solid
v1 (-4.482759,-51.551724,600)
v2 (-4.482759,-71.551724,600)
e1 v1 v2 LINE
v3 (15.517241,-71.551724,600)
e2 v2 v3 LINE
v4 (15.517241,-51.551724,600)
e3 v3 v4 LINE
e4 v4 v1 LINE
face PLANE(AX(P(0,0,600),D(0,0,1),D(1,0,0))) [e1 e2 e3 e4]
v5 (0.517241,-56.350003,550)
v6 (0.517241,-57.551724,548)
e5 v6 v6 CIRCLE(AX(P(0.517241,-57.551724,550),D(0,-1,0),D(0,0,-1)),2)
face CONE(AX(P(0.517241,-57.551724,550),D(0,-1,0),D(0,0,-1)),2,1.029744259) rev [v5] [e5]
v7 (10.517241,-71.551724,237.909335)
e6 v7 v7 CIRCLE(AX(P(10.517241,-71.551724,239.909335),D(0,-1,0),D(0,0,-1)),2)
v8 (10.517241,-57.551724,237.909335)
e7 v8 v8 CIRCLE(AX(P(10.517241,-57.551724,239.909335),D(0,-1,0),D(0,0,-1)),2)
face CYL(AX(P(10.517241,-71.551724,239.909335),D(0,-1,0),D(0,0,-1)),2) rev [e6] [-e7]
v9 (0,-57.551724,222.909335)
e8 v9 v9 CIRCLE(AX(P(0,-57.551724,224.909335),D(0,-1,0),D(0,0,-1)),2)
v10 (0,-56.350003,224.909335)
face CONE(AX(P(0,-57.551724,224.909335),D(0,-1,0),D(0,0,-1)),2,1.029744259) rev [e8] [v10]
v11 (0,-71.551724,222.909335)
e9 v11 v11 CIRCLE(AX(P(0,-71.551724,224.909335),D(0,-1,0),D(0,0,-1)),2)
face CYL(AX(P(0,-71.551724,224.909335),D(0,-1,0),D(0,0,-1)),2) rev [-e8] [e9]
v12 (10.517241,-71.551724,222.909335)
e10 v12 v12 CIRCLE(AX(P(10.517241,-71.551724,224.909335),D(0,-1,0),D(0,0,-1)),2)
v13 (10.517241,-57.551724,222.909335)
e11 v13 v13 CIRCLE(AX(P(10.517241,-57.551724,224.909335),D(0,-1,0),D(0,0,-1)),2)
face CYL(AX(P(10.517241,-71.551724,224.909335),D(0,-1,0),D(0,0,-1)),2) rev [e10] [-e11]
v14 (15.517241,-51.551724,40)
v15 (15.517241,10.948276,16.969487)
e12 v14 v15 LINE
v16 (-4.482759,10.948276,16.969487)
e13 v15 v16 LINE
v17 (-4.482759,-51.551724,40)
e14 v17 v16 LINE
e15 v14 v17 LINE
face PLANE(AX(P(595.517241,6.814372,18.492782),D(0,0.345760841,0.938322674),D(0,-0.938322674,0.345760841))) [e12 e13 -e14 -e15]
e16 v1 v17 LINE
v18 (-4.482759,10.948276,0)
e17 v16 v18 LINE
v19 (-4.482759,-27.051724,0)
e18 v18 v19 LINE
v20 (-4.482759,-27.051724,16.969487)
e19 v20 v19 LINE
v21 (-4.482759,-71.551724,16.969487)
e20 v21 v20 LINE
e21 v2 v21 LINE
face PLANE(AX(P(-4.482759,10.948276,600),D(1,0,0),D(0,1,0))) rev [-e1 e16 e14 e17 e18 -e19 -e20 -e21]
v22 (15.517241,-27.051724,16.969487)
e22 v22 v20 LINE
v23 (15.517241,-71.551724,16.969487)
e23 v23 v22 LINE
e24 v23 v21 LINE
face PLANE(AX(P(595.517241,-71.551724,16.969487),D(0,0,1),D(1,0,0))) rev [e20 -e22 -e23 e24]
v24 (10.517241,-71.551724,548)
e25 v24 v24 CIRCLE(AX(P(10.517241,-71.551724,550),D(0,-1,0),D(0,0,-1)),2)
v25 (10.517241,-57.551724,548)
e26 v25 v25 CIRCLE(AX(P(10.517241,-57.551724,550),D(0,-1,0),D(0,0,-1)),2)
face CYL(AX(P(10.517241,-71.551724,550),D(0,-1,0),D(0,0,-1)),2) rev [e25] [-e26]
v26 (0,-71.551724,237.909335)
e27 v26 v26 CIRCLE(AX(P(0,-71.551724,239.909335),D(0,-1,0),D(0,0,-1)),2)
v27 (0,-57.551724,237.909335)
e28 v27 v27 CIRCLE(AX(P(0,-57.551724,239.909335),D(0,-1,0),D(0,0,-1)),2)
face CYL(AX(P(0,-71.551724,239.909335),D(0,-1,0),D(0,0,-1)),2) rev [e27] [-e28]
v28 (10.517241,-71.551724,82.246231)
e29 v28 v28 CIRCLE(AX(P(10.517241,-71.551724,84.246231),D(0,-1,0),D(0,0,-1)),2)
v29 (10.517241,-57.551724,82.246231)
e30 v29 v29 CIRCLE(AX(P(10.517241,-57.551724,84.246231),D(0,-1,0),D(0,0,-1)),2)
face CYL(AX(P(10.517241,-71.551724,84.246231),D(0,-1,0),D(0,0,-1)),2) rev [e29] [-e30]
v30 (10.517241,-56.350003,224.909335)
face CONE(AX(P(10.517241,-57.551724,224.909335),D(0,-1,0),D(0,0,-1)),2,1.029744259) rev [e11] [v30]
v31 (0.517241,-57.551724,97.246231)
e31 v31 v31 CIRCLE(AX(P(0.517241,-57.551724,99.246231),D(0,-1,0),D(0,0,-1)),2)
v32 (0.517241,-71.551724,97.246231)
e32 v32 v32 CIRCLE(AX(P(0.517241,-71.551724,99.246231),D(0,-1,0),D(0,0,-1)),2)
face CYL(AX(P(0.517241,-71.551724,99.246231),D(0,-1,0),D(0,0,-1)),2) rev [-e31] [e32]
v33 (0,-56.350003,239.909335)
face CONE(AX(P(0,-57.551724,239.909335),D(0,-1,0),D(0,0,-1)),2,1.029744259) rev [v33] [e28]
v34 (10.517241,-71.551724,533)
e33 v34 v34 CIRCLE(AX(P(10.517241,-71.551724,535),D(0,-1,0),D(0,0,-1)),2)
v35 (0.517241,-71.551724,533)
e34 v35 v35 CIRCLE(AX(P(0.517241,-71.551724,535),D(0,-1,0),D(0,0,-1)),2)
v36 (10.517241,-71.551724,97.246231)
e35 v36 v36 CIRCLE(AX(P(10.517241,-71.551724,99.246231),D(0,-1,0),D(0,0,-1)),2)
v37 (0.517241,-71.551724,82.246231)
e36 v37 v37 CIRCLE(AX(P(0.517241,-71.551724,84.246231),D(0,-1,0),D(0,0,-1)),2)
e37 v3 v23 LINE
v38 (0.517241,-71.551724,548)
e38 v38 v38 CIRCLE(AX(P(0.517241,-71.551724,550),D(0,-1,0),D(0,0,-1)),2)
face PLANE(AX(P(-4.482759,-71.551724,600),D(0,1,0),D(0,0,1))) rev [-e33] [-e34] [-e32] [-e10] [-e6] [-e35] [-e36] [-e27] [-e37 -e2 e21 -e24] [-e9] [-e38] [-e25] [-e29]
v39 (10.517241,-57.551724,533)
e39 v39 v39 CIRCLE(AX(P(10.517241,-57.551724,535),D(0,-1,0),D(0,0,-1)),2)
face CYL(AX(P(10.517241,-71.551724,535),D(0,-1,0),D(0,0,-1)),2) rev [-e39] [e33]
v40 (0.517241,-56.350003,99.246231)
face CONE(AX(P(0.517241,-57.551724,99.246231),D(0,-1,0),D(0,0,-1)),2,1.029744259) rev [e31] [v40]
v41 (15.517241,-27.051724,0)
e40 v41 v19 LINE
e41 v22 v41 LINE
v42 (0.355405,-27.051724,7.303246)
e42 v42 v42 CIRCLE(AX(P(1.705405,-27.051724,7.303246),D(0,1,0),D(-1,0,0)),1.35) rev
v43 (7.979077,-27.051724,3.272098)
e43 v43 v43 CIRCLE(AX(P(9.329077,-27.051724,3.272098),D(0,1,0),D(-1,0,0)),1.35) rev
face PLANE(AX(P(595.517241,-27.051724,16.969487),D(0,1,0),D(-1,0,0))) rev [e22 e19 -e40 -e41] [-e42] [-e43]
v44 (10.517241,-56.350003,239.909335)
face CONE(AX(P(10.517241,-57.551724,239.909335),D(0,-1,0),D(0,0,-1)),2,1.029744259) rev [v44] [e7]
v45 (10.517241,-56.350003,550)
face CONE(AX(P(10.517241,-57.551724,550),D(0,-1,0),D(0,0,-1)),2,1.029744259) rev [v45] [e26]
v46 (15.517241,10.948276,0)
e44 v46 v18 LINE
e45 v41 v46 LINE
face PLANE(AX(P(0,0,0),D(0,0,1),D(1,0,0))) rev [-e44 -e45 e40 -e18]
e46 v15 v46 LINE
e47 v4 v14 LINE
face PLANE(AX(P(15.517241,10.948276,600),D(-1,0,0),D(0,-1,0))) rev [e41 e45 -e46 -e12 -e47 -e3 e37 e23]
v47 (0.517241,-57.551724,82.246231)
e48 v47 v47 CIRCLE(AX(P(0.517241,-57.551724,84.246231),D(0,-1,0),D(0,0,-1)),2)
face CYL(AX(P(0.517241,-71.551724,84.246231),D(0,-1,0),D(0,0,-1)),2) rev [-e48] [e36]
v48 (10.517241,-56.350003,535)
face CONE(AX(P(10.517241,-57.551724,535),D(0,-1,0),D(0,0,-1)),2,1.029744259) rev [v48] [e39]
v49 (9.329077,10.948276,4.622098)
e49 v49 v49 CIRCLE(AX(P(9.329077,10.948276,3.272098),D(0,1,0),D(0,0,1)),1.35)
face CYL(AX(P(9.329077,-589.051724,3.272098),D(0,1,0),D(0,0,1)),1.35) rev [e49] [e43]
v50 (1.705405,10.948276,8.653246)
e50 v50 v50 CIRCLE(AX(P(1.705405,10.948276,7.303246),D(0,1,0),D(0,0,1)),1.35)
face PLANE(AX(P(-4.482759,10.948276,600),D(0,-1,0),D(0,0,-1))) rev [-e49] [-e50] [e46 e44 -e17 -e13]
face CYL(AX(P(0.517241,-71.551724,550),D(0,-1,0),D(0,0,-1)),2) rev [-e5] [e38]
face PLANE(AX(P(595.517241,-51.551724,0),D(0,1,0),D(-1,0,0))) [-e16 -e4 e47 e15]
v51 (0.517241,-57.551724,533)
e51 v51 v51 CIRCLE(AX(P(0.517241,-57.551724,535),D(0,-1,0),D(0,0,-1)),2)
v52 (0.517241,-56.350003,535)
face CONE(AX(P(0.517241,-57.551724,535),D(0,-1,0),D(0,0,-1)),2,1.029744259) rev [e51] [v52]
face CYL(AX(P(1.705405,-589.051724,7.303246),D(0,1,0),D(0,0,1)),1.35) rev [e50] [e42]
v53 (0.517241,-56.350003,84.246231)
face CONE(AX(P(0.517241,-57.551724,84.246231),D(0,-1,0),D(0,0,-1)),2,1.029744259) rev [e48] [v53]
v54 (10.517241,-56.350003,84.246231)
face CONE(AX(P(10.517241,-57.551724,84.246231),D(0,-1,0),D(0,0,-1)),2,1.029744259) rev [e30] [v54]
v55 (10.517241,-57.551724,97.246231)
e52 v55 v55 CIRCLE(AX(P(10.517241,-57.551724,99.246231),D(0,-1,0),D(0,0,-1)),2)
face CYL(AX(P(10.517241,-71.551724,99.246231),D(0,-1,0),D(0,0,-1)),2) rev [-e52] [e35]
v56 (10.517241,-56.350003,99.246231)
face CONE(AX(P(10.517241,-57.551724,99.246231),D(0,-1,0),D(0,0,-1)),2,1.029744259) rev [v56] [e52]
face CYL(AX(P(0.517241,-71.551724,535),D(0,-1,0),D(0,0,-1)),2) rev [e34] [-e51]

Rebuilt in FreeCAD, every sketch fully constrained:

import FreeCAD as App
import Part
import Sketcher


def add_polygon(sketch, points):
    """Adds a closed chain of lines whose ends are joined by coincident constraints."""
    first, n = sketch.GeometryCount, len(points)
    for a, b in zip(points, points[1:] + points[:1]):
        sketch.addGeometry(Part.LineSegment(App.Vector(*a, 0), App.Vector(*b, 0)), False)
    for i in range(n):
        sketch.addConstraint(Sketcher.Constraint("Coincident", first + i, 2, first + (i + 1) % n, 1))

doc = App.newDocument("Part")
body = doc.addObject("PartDesign::Body", "Body")

# Sketch on XY plane
sketch1 = body.newObject("Sketcher::SketchObject", "Sketch")
sketch1.AttachmentSupport = (doc.getObject("XY_Plane"), [""])
sketch1.MapMode = "FlatFace"
add_polygon(sketch1, [(-4.482759, 10.948276), (-4.482759, -71.551724), (15.517241, -71.551724), (15.517241, 10.948276)])  # lines 0-3
sketch1.addConstraint(Sketcher.Constraint("Vertical", 0))
sketch1.addConstraint(Sketcher.Constraint("Horizontal", 1))
sketch1.addConstraint(Sketcher.Constraint("Vertical", 2))
sketch1.addConstraint(Sketcher.Constraint("Horizontal", 3))
sketch1.addConstraint(Sketcher.Constraint("DistanceX", 1, 1, 1, 2, 20.0))
sketch1.addConstraint(Sketcher.Constraint("DistanceY", 0, 2, 0, 1, 82.5))
sketch1.addConstraint(Sketcher.Constraint("DistanceX", 0, 2, -1, 1, 4.482759))
sketch1.addConstraint(Sketcher.Constraint("DistanceY", 0, 2, -1, 1, 71.551724))
pad1 = body.newObject("PartDesign::Pad", "Pad")
pad1.Profile = sketch1
pad1.Length = 600

# Sketch on XZ plane
sketch2 = body.newObject("Sketcher::SketchObject", "Sketch001")
sketch2.AttachmentSupport = (doc.getObject("XZ_Plane"), [""])
sketch2.MapMode = "FlatFace"
sketch2.AttachmentOffset = App.Placement(App.Vector(0, 0, -10.948276), App.Rotation())
sketch2.addGeometry(Part.Circle(App.Vector(9.329077, 3.272098, 0), App.Vector(0, 0, 1), 1.35), False)
sketch2.addGeometry(Part.Circle(App.Vector(1.705405, 7.303246, 0), App.Vector(0, 0, 1), 1.35), False)
sketch2.addConstraint(Sketcher.Constraint("Equal", 0, 1))
sketch2.addConstraint(Sketcher.Constraint("Diameter", 0, 2.7))
sketch2.addConstraint(Sketcher.Constraint("DistanceY", -1, 1, 0, 3, 3.272098))
sketch2.addConstraint(Sketcher.Constraint("DistanceY", 0, 3, 1, 3, 4.031148))
sketch2.addConstraint(Sketcher.Constraint("DistanceX", -1, 1, 0, 3, 9.329077))
sketch2.addConstraint(Sketcher.Constraint("DistanceX", -1, 1, 1, 3, 1.705405))
pocket1 = body.newObject("PartDesign::Pocket", "Pocket")
pocket1.Profile = sketch2
pocket1.Length = 600
pocket1.Reversed = True

# Sketch on YZ plane
sketch3 = body.newObject("Sketcher::SketchObject", "Sketch002")
sketch3.AttachmentSupport = (doc.getObject("YZ_Plane"), [""])
sketch3.MapMode = "FlatFace"
sketch3.AttachmentOffset = App.Placement(App.Vector(0, 0, -4.482759), App.Rotation())
add_polygon(sketch3, [(-51.551724, 40), (-51.551724, 600), (10.948276, 600), (10.948276, 16.969487)])  # lines 0-3
sketch3.addConstraint(Sketcher.Constraint("Vertical", 0))
sketch3.addConstraint(Sketcher.Constraint("Horizontal", 1))
sketch3.addConstraint(Sketcher.Constraint("Vertical", 2))
sketch3.addConstraint(Sketcher.Constraint("DistanceY", 0, 1, 0, 2, 560.0))
sketch3.addConstraint(Sketcher.Constraint("DistanceX", 1, 1, 1, 2, 62.5))
sketch3.addConstraint(Sketcher.Constraint("DistanceY", -1, 1, 0, 2, 600.0))
sketch3.addConstraint(Sketcher.Constraint("DistanceY", 2, 2, 2, 1, 583.030513))
sketch3.addConstraint(Sketcher.Constraint("DistanceX", 0, 2, -1, 1, 51.551724))
pocket2 = body.newObject("PartDesign::Pocket", "Pocket001")
pocket2.Profile = sketch3
pocket2.Length = 600
pocket2.Reversed = True

# Sketch on YZ plane
sketch4 = body.newObject("Sketcher::SketchObject", "Sketch003")
sketch4.AttachmentSupport = (doc.getObject("YZ_Plane"), [""])
sketch4.MapMode = "FlatFace"
sketch4.AttachmentOffset = App.Placement(App.Vector(0, 0, -4.482759), App.Rotation())
add_polygon(sketch4, [(-27.051724, 0), (-71.551724, 0), (-71.551724, 16.969487), (-27.051724, 16.969487)])  # lines 0-3
sketch4.addConstraint(Sketcher.Constraint("Horizontal", 0))
sketch4.addConstraint(Sketcher.Constraint("Vertical", 1))
sketch4.addConstraint(Sketcher.Constraint("Horizontal", 2))
sketch4.addConstraint(Sketcher.Constraint("Vertical", 3))
sketch4.addConstraint(Sketcher.Constraint("PointOnObject", 0, 2, -1))
sketch4.addConstraint(Sketcher.Constraint("DistanceX", 0, 2, 0, 1, 44.5))
sketch4.addConstraint(Sketcher.Constraint("DistanceY", 1, 1, 1, 2, 16.969487))
sketch4.addConstraint(Sketcher.Constraint("DistanceX", 0, 2, -1, 1, 71.551724))
pocket3 = body.newObject("PartDesign::Pocket", "Pocket002")
pocket3.Profile = sketch4
pocket3.Length = 600
pocket3.Reversed = True

# Sketch on XZ plane
sketch5 = body.newObject("Sketcher::SketchObject", "Sketch004")
sketch5.AttachmentSupport = (doc.getObject("XZ_Plane"), [""])
sketch5.MapMode = "FlatFace"
sketch5.AttachmentOffset = App.Placement(App.Vector(0, 0, 71.551724), App.Rotation())
sketch5.addGeometry(Part.Circle(App.Vector(10.517241, 84.246231, 0), App.Vector(0, 0, 1), 2), False)
sketch5.addGeometry(Part.Circle(App.Vector(10.517241, 99.246231, 0), App.Vector(0, 0, 1), 2), False)
sketch5.addGeometry(Part.Circle(App.Vector(10.517241, 224.909335, 0), App.Vector(0, 0, 1), 2), False)
sketch5.addGeometry(Part.Circle(App.Vector(10.517241, 239.909335, 0), App.Vector(0, 0, 1), 2), False)
sketch5.addGeometry(Part.Circle(App.Vector(10.517241, 535, 0), App.Vector(0, 0, 1), 2), False)
sketch5.addGeometry(Part.Circle(App.Vector(10.517241, 550, 0), App.Vector(0, 0, 1), 2), False)
sketch5.addConstraint(Sketcher.Constraint("Equal", 0, 1))
sketch5.addConstraint(Sketcher.Constraint("Equal", 1, 2))
sketch5.addConstraint(Sketcher.Constraint("Equal", 2, 3))
sketch5.addConstraint(Sketcher.Constraint("Equal", 3, 4))
sketch5.addConstraint(Sketcher.Constraint("Equal", 4, 5))
sketch5.addConstraint(Sketcher.Constraint("Vertical", 0, 3, 1, 3))
sketch5.addConstraint(Sketcher.Constraint("Vertical", 1, 3, 2, 3))
sketch5.addConstraint(Sketcher.Constraint("Vertical", 2, 3, 3, 3))
sketch5.addConstraint(Sketcher.Constraint("Vertical", 3, 3, 4, 3))
sketch5.addConstraint(Sketcher.Constraint("Vertical", 4, 3, 5, 3))
sketch5.addConstraint(Sketcher.Constraint("Diameter", 0, 4.0))
sketch5.addConstraint(Sketcher.Constraint("DistanceY", -1, 1, 4, 3, 535.0))
sketch5.addConstraint(Sketcher.Constraint("DistanceY", -1, 1, 5, 3, 550.0))
sketch5.addConstraint(Sketcher.Constraint("DistanceY", 0, 3, 1, 3, 15.0))
sketch5.addConstraint(Sketcher.Constraint("DistanceY", 2, 3, 3, 3, 15.0))
sketch5.addConstraint(Sketcher.Constraint("DistanceX", -1, 1, 0, 3, 10.517241))
sketch5.addConstraint(Sketcher.Constraint("DistanceY", -1, 1, 0, 3, 84.246231))
sketch5.addConstraint(Sketcher.Constraint("DistanceY", -1, 1, 2, 3, 224.909335))
doc.recompute()
hole = body.newObject("PartDesign::Hole", "Hole")
hole.Profile = sketch5
hole.ThreadType = "None"
hole.Diameter = 4
hole.DepthType = "Dimension"
hole.Depth = 14
hole.DrillPoint = "Angled"
hole.DrillPointAngle = 118

# Sketch on XZ plane
sketch6 = body.newObject("Sketcher::SketchObject", "Sketch005")
sketch6.AttachmentSupport = (doc.getObject("XZ_Plane"), [""])
sketch6.MapMode = "FlatFace"
sketch6.AttachmentOffset = App.Placement(App.Vector(0, 0, 71.551724), App.Rotation())
sketch6.addGeometry(Part.Circle(App.Vector(0.517241, 550, 0), App.Vector(0, 0, 1), 2), False)
sketch6.addGeometry(Part.Circle(App.Vector(0.517241, 535, 0), App.Vector(0, 0, 1), 2), False)
sketch6.addConstraint(Sketcher.Constraint("Equal", 0, 1))
sketch6.addConstraint(Sketcher.Constraint("Vertical", 0, 3, 1, 3))
sketch6.addConstraint(Sketcher.Constraint("Diameter", 0, 4.0))
sketch6.addConstraint(Sketcher.Constraint("DistanceY", -1, 1, 0, 3, 550.0))
sketch6.addConstraint(Sketcher.Constraint("DistanceY", -1, 1, 1, 3, 535.0))
sketch6.addConstraint(Sketcher.Constraint("DistanceX", -1, 1, 0, 3, 0.517241))
doc.recompute()
hole2 = body.newObject("PartDesign::Hole", "Hole001")
hole2.Profile = sketch6
hole2.ThreadType = "None"
hole2.Diameter = 4
hole2.DepthType = "Dimension"
hole2.Depth = 14
hole2.DrillPoint = "Angled"
hole2.DrillPointAngle = 118

# Sketch on XZ plane
sketch7 = body.newObject("Sketcher::SketchObject", "Sketch006")
sketch7.AttachmentSupport = (doc.getObject("XZ_Plane"), [""])
sketch7.MapMode = "FlatFace"
sketch7.AttachmentOffset = App.Placement(App.Vector(0, 0, 71.551724), App.Rotation())
sketch7.addGeometry(Part.Circle(App.Vector(0.517241, 99.246231, 0), App.Vector(0, 0, 1), 2), False)
sketch7.addGeometry(Part.Circle(App.Vector(0.517241, 84.246231, 0), App.Vector(0, 0, 1), 2), False)
sketch7.addConstraint(Sketcher.Constraint("Equal", 0, 1))
sketch7.addConstraint(Sketcher.Constraint("Vertical", 0, 3, 1, 3))
sketch7.addConstraint(Sketcher.Constraint("Diameter", 0, 4.0))
sketch7.addConstraint(Sketcher.Constraint("DistanceY", 1, 3, 0, 3, 15.0))
sketch7.addConstraint(Sketcher.Constraint("DistanceX", -1, 1, 0, 3, 0.517241))
sketch7.addConstraint(Sketcher.Constraint("DistanceY", -1, 1, 0, 3, 99.246231))
doc.recompute()
hole3 = body.newObject("PartDesign::Hole", "Hole002")
hole3.Profile = sketch7
hole3.ThreadType = "None"
hole3.Diameter = 4
hole3.DepthType = "Dimension"
hole3.Depth = 14
hole3.DrillPoint = "Angled"
hole3.DrillPointAngle = 118

# Sketch on XZ plane
sketch8 = body.newObject("Sketcher::SketchObject", "Sketch007")
sketch8.AttachmentSupport = (doc.getObject("XZ_Plane"), [""])
sketch8.MapMode = "FlatFace"
sketch8.AttachmentOffset = App.Placement(App.Vector(0, 0, 71.551724), App.Rotation())
sketch8.addGeometry(Part.Circle(App.Vector(0, 224.909335, 0), App.Vector(0, 0, 1), 2), False)
sketch8.addGeometry(Part.Circle(App.Vector(0, 239.909335, 0), App.Vector(0, 0, 1), 2), False)
sketch8.addConstraint(Sketcher.Constraint("Equal", 0, 1))
sketch8.addConstraint(Sketcher.Constraint("PointOnObject", 0, 3, -2))
sketch8.addConstraint(Sketcher.Constraint("PointOnObject", 1, 3, -2))
sketch8.addConstraint(Sketcher.Constraint("Diameter", 0, 4.0))
sketch8.addConstraint(Sketcher.Constraint("DistanceY", 0, 3, 1, 3, 15.0))
sketch8.addConstraint(Sketcher.Constraint("DistanceY", -1, 1, 0, 3, 224.909335))
doc.recompute()
hole4 = body.newObject("PartDesign::Hole", "Hole003")
hole4.Profile = sketch8
hole4.ThreadType = "None"
hole4.Diameter = 4
hole4.DepthType = "Dimension"
hole4.Depth = 14
hole4.DrillPoint = "Angled"
hole4.DrillPointAngle = 118

doc.recompute()
